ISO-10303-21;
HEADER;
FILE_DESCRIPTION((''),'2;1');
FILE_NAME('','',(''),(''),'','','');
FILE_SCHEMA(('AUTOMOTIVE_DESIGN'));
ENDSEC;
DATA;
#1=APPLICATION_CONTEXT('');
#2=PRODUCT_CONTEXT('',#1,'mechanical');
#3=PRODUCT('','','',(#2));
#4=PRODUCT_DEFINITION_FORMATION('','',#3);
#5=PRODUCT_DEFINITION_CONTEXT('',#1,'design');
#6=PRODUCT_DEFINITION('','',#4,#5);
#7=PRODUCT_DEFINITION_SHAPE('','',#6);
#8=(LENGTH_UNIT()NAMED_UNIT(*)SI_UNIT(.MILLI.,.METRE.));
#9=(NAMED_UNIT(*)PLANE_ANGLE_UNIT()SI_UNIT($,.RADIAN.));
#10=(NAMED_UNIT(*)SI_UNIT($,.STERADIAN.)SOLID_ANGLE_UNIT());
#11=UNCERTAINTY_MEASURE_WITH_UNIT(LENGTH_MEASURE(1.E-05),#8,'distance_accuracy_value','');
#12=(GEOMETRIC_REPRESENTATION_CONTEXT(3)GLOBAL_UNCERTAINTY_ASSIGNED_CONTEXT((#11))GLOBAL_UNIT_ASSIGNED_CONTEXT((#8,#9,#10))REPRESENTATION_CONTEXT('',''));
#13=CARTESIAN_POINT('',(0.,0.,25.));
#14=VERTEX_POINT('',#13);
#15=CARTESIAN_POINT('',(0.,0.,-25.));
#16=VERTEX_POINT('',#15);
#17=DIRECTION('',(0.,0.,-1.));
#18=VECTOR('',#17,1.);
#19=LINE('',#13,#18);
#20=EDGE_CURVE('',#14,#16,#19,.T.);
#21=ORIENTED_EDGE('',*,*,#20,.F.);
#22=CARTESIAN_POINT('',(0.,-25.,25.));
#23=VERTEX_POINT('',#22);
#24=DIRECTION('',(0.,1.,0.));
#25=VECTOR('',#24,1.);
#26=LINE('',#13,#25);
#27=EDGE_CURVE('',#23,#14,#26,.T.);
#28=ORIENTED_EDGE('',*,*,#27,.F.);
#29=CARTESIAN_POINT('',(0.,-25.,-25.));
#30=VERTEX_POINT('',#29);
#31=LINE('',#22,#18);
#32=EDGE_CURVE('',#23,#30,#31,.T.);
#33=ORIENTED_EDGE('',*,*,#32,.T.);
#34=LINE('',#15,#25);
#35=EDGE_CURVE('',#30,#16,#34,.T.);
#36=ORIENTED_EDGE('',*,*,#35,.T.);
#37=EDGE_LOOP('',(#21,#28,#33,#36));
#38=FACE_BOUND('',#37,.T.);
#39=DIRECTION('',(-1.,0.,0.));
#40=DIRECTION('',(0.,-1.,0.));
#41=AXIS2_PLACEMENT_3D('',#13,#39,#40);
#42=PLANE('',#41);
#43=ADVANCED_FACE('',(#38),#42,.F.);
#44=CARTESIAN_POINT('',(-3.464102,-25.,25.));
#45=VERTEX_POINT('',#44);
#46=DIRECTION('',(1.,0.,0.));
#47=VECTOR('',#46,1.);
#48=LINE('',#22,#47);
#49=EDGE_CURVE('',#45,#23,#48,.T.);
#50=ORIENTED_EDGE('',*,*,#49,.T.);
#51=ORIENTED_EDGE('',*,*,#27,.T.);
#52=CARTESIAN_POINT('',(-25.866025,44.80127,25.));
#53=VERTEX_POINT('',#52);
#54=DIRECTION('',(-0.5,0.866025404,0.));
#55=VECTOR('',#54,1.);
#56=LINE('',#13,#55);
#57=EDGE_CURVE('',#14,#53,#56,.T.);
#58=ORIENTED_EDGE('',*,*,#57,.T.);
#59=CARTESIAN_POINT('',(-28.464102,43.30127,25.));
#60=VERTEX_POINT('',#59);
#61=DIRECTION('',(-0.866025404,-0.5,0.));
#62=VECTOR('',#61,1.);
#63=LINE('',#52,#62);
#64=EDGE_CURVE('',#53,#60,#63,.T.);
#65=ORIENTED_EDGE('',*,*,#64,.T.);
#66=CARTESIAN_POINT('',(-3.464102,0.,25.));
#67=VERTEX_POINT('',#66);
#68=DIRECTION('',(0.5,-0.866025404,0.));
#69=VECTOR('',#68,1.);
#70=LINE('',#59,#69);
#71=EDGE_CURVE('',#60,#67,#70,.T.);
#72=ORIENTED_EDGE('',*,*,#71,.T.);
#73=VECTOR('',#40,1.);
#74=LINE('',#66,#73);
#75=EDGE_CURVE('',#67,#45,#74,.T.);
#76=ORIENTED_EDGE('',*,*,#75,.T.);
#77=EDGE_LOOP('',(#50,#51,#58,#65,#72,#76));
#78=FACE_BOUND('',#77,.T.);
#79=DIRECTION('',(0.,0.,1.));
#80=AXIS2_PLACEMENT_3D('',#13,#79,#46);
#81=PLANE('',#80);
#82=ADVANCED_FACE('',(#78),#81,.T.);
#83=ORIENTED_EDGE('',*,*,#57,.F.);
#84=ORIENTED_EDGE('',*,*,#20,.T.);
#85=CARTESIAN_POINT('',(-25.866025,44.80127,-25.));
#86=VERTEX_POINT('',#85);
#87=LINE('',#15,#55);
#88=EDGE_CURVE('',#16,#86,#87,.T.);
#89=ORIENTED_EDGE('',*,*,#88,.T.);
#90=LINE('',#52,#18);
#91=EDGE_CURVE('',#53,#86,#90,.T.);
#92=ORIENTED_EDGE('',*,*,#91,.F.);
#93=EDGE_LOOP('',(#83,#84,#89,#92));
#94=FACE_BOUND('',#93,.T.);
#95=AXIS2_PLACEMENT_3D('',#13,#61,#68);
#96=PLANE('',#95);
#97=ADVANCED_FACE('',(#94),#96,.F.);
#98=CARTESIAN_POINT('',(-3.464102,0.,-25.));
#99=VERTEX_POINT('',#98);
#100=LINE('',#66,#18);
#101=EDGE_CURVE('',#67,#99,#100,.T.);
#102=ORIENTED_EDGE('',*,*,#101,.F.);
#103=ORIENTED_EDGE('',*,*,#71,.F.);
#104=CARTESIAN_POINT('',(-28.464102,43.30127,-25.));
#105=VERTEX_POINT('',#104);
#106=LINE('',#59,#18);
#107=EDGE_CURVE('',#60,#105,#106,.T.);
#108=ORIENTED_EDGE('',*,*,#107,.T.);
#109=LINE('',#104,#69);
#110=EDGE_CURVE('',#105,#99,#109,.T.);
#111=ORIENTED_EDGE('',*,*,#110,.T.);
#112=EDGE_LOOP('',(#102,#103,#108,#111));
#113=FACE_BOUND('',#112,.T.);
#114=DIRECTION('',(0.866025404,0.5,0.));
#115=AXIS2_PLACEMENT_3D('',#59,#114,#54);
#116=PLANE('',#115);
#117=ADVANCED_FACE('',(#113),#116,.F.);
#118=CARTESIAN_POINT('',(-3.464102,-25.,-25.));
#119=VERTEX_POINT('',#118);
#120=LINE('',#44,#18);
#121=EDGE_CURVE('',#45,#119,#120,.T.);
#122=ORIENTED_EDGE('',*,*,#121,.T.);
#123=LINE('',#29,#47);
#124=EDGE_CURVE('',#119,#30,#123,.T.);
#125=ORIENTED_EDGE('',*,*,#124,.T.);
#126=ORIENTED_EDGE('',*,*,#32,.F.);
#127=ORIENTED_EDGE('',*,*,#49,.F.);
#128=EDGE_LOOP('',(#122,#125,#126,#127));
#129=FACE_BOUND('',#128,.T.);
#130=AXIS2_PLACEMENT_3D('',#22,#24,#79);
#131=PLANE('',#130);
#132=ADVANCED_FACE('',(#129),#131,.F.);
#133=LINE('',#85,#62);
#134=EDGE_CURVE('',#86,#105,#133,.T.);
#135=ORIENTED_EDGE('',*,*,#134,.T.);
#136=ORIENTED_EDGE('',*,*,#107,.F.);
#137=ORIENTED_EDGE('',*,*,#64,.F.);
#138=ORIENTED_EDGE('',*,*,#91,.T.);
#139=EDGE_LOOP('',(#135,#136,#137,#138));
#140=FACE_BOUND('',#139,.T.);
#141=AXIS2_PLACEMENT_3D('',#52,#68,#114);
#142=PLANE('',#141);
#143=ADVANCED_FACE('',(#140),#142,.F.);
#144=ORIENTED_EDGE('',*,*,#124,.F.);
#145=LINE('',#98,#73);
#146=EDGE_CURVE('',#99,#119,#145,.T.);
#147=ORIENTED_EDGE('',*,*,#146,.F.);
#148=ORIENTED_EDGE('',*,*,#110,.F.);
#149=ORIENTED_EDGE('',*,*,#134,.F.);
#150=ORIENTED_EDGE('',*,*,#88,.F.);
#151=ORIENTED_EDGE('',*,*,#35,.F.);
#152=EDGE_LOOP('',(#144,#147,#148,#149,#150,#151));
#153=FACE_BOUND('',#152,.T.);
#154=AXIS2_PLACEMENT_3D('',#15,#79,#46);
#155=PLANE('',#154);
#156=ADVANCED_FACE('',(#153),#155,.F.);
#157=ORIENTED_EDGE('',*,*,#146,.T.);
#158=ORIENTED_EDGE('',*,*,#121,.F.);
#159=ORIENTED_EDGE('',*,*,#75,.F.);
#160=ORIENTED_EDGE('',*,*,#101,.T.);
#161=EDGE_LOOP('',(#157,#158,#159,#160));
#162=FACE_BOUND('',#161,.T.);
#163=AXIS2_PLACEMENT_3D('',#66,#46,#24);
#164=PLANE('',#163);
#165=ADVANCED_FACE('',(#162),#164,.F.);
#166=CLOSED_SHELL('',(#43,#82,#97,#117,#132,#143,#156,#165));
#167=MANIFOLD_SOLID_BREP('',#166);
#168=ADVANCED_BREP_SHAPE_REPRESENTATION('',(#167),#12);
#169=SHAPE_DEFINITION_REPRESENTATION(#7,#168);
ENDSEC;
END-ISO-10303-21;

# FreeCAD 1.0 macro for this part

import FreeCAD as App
import Part
import Sketcher

V = App.Vector
Q = App.Units.Quantity


def add_polygon(sketch, points):
    """Adds a closed chain of lines whose ends are joined by coincident constraints."""
    first, n = sketch.GeometryCount, len(points)
    for a, b in zip(points, points[1:] + points[:1]):
        sketch.addGeometry(Part.LineSegment(App.Vector(*a, 0), App.Vector(*b, 0)), False)
    for i in range(n):
        sketch.addConstraint(Sketcher.Constraint("Coincident", first + i, 2, first + (i + 1) % n, 1))

doc = App.newDocument("Part")
body = doc.addObject("PartDesign::Body", "Body")

# Sketch on XY plane
sketch1 = body.newObject("Sketcher::SketchObject", "Sketch")
sketch1.AttachmentSupport = (doc.getObject("XY_Plane"), [""])
sketch1.MapMode = "FlatFace"
add_polygon(sketch1, [(-28.5, 43.3), (-3.5, 0), (-3.5, -25), (0, -25), (0, 0), (-25.9, 44.8)])  # lines 0-5
sketch1.addConstraint([
    Sketcher.Constraint("Vertical", 1),
    Sketcher.Constraint("Horizontal", 2),
    Sketcher.Constraint("Vertical", 3),
    Sketcher.Constraint("Coincident", 3, 2, -1, 1),
    Sketcher.Constraint("PointOnObject", 0, 2, -1),
    Sketcher.Constraint("Parallel", 0, 4),
    Sketcher.Constraint("Perpendicular", 4, 5),
    Sketcher.Constraint("DistanceY", 1, 2, 1, 1, 25.0),
    Sketcher.Constraint("Angle", 0, Q("-60 deg")),
    Sketcher.Constraint("Distance", 0, 50.0),
    Sketcher.Constraint("Distance", 5, 3.0),
])
pad1 = body.newObject("PartDesign::Pad", "Pad")
pad1.Profile = sketch1
pad1.Length = 50
pad1.Midplane = True

doc.recompute()
